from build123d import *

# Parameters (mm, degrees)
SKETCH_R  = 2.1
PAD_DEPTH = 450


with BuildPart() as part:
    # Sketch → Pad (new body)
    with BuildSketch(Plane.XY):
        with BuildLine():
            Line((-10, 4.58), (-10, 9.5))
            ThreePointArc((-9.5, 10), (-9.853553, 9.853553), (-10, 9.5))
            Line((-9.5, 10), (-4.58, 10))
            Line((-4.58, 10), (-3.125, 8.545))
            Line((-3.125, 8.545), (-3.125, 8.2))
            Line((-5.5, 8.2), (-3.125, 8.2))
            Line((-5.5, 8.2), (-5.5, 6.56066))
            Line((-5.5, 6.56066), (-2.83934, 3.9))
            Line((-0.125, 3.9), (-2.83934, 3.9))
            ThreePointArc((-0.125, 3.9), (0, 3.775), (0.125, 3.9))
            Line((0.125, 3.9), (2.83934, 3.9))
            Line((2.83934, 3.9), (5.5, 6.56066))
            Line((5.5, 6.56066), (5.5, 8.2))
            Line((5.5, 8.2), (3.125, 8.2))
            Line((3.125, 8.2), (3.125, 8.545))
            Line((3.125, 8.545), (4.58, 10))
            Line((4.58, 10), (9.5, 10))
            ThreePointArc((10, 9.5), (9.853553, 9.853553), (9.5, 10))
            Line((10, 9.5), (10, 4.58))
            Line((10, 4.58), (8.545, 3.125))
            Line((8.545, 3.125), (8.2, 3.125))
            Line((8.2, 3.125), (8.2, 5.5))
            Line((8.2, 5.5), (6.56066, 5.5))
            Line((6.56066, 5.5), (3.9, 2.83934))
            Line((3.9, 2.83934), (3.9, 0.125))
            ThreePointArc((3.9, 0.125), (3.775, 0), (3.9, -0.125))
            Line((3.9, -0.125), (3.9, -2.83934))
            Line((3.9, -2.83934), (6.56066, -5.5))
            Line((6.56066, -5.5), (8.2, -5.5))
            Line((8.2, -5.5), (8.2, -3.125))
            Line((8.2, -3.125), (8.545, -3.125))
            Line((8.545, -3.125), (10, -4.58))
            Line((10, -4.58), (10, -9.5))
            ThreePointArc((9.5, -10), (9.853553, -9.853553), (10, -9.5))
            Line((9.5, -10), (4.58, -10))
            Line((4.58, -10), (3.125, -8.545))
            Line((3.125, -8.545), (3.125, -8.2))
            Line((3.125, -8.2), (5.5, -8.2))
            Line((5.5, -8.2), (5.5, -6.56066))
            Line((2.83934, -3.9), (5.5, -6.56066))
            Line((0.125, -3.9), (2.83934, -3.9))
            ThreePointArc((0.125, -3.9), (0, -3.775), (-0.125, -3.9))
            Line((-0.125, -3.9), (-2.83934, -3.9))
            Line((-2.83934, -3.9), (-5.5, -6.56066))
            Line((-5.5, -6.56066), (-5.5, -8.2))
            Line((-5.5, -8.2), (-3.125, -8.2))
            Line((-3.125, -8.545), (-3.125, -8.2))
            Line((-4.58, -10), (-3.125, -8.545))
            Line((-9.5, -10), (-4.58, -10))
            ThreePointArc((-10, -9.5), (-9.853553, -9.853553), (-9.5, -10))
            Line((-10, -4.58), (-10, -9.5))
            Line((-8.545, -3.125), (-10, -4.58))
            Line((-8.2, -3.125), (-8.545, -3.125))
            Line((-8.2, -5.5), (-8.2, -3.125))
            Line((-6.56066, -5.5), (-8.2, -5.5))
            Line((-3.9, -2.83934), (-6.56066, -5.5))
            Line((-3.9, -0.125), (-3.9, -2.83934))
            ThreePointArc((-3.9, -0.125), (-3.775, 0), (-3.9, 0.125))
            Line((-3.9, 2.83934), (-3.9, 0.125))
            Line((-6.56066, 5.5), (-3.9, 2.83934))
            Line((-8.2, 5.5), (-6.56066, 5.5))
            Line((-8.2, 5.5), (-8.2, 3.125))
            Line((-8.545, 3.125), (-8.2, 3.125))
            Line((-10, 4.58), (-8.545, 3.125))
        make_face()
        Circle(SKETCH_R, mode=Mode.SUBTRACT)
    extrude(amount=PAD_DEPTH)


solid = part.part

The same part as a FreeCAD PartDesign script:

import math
import FreeCAD as App
import Part
import Sketcher

V = App.Vector

doc = App.newDocument("Part")
params = doc.addObject("Spreadsheet::Sheet", "Params")
for row, (alias, value) in enumerate([
    ("sketch1_diameter", "4.2 mm"),
    ("sketch1_radius", "0.500001 mm"),
    ("sketch1_width", "4.92 mm"),
    ("pad1_length", "450 mm"),
], start=1):
    params.set(f"A{row}", alias)
    params.set(f"B{row}", "=" + value)
    params.setAlias(f"B{row}", alias)

body = doc.addObject("PartDesign::Body", "Body")

# Sketch on XY plane
sketch1 = doc.addObject("Sketcher::SketchObject", "Sketch")
body.addObject(sketch1)
sketch1.AttachmentSupport = (doc.XY_Plane, [""])
sketch1.MapMode = "FlatFace"
sketch1.addGeometry(Part.LineSegment(V(-10, 9.5, 0), V(-10, 4.58, 0)), False)
sketch1.addGeometry(Part.LineSegment(V(-10, 4.58, 0), V(-8.54, 3.12, 0)), False)
sketch1.addGeometry(Part.LineSegment(V(-8.54, 3.12, 0), V(-8.2, 3.12, 0)), False)
sketch1.addGeometry(Part.LineSegment(V(-8.2, 3.12, 0), V(-8.2, 5.5, 0)), False)
sketch1.addGeometry(Part.LineSegment(V(-8.2, 5.5, 0), V(-6.56, 5.5, 0)), False)
sketch1.addGeometry(Part.LineSegment(V(-6.56, 5.5, 0), V(-3.9, 2.84, 0)), False)
sketch1.addGeometry(Part.LineSegment(V(-3.9, 2.84, 0), V(-3.9, 0.12, 0)), False)
sketch1.addGeometry(Part.ArcOfCircle(Part.Circle(V(-3.9, 0, 0), V(0, 0, 1), 0.12), math.radians(-90), math.radians(90)), False)
sketch1.addGeometry(Part.LineSegment(V(-3.9, -0.12, 0), V(-3.9, -2.84, 0)), False)
sketch1.addGeometry(Part.LineSegment(V(-3.9, -2.84, 0), V(-6.56, -5.5, 0)), False)
sketch1.addGeometry(Part.LineSegment(V(-6.56, -5.5, 0), V(-8.2, -5.5, 0)), False)
sketch1.addGeometry(Part.LineSegment(V(-8.2, -5.5, 0), V(-8.2, -3.12, 0)), False)
sketch1.addGeometry(Part.LineSegment(V(-8.2, -3.12, 0), V(-8.54, -3.12, 0)), False)
sketch1.addGeometry(Part.LineSegment(V(-8.54, -3.12, 0), V(-10, -4.58, 0)), False)
sketch1.addGeometry(Part.LineSegment(V(-10, -4.58, 0), V(-10, -9.5, 0)), False)
sketch1.addGeometry(Part.ArcOfCircle(Part.Circle(V(-9.5, -9.5, 0), V(0, 0, 1), 0.5), math.radians(-180), math.radians(-90)), False)
sketch1.addGeometry(Part.LineSegment(V(-9.5, -10, 0), V(-4.58, -10, 0)), False)
sketch1.addGeometry(Part.LineSegment(V(-4.58, -10, 0), V(-3.12, -8.54, 0)), False)
sketch1.addGeometry(Part.LineSegment(V(-3.12, -8.54, 0), V(-3.12, -8.2, 0)), False)
sketch1.addGeometry(Part.LineSegment(V(-3.12, -8.2, 0), V(-5.5, -8.2, 0)), False)
sketch1.addGeometry(Part.LineSegment(V(-5.5, -8.2, 0), V(-5.5, -6.56, 0)), False)
sketch1.addGeometry(Part.LineSegment(V(-5.5, -6.56, 0), V(-2.84, -3.9, 0)), False)
sketch1.addGeometry(Part.LineSegment(V(-2.84, -3.9, 0), V(-0.12, -3.9, 0)), False)
sketch1.addGeometry(Part.ArcOfCircle(Part.Circle(V(0, -3.9, 0), V(0, 0, 1), 0.12), math.radians(0), math.radians(180)), False)
sketch1.addGeometry(Part.LineSegment(V(0.12, -3.9, 0), V(2.84, -3.9, 0)), False)
sketch1.addGeometry(Part.LineSegment(V(2.84, -3.9, 0), V(5.5, -6.56, 0)), False)
sketch1.addGeometry(Part.LineSegment(V(5.5, -6.56, 0), V(5.5, -8.2, 0)), False)
sketch1.addGeometry(Part.LineSegment(V(5.5, -8.2, 0), V(3.12, -8.2, 0)), False)
sketch1.addGeometry(Part.LineSegment(V(3.12, -8.2, 0), V(3.12, -8.54, 0)), False)
sketch1.addGeometry(Part.LineSegment(V(3.12, -8.54, 0), V(4.58, -10, 0)), False)
sketch1.addGeometry(Part.LineSegment(V(4.58, -10, 0), V(9.5, -10, 0)), False)
sketch1.addGeometry(Part.ArcOfCircle(Part.Circle(V(9.5, -9.5, 0), V(0, 0, 1), 0.5), math.radians(-90), math.radians(0)), False)
sketch1.addGeometry(Part.LineSegment(V(10, -9.5, 0), V(10, -4.58, 0)), False)
sketch1.addGeometry(Part.LineSegment(V(10, -4.58, 0), V(8.54, -3.12, 0)), False)
sketch1.addGeometry(Part.LineSegment(V(8.54, -3.12, 0), V(8.2, -3.12, 0)), False)
sketch1.addGeometry(Part.LineSegment(V(8.2, -3.12, 0), V(8.2, -5.5, 0)), False)
sketch1.addGeometry(Part.LineSegment(V(8.2, -5.5, 0), V(6.56, -5.5, 0)), False)
sketch1.addGeometry(Part.LineSegment(V(6.56, -5.5, 0), V(3.9, -2.84, 0)), False)
sketch1.addGeometry(Part.LineSegment(V(3.9, -2.84, 0), V(3.9, -0.12, 0)), False)
sketch1.addGeometry(Part.ArcOfCircle(Part.Circle(V(3.9, 0, 0), V(0, 0, 1), 0.12), math.radians(90), math.radians(270)), False)
sketch1.addGeometry(Part.LineSegment(V(3.9, 0.12, 0), V(3.9, 2.84, 0)), False)
sketch1.addGeometry(Part.LineSegment(V(3.9, 2.84, 0), V(6.56, 5.5, 0)), False)
sketch1.addGeometry(Part.LineSegment(V(6.56, 5.5, 0), V(8.2, 5.5, 0)), False)
sketch1.addGeometry(Part.LineSegment(V(8.2, 5.5, 0), V(8.2, 3.12, 0)), False)
sketch1.addGeometry(Part.LineSegment(V(8.2, 3.12, 0), V(8.54, 3.12, 0)), False)
sketch1.addGeometry(Part.LineSegment(V(8.54, 3.12, 0), V(10, 4.58, 0)), False)
sketch1.addGeometry(Part.LineSegment(V(10, 4.58, 0), V(10, 9.5, 0)), False)
sketch1.addGeometry(Part.ArcOfCircle(Part.Circle(V(9.5, 9.5, 0), V(0, 0, 1), 0.5), math.radians(0), math.radians(90)), False)
sketch1.addGeometry(Part.LineSegment(V(9.5, 10, 0), V(4.58, 10, 0)), False)
sketch1.addGeometry(Part.LineSegment(V(4.58, 10, 0), V(3.12, 8.54, 0)), False)
sketch1.addGeometry(Part.LineSegment(V(3.12, 8.54, 0), V(3.12, 8.2, 0)), False)
sketch1.addGeometry(Part.LineSegment(V(3.12, 8.2, 0), V(5.5, 8.2, 0)), False)
sketch1.addGeometry(Part.LineSegment(V(5.5, 8.2, 0), V(5.5, 6.56, 0)), False)
sketch1.addGeometry(Part.LineSegment(V(5.5, 6.56, 0), V(2.84, 3.9, 0)), False)
sketch1.addGeometry(Part.LineSegment(V(2.84, 3.9, 0), V(0.12, 3.9, 0)), False)
sketch1.addGeometry(Part.ArcOfCircle(Part.Circle(V(0, 3.9, 0), V(0, 0, 1), 0.12), math.radians(180), math.radians(360)), False)
sketch1.addGeometry(Part.LineSegment(V(-0.12, 3.9, 0), V(-2.84, 3.9, 0)), False)
sketch1.addGeometry(Part.LineSegment(V(-2.84, 3.9, 0), V(-5.5, 6.56, 0)), False)
sketch1.addGeometry(Part.LineSegment(V(-5.5, 6.56, 0), V(-5.5, 8.2, 0)), False)
sketch1.addGeometry(Part.LineSegment(V(-5.5, 8.2, 0), V(-3.12, 8.2, 0)), False)
sketch1.addGeometry(Part.LineSegment(V(-3.12, 8.2, 0), V(-3.12, 8.54, 0)), False)
sketch1.addGeometry(Part.LineSegment(V(-3.12, 8.54, 0), V(-4.58, 10, 0)), False)
sketch1.addGeometry(Part.LineSegment(V(-4.58, 10, 0), V(-9.5, 10, 0)), False)
sketch1.addGeometry(Part.ArcOfCircle(Part.Circle(V(-9.5, 9.5, 0), V(0, 0, 1), 0.5), math.radians(90), math.radians(180)), False)
sketch1.addGeometry(Part.Circle(V(0, 0, 0), V(0, 0, 1), 2.1), False)
sketch1.addConstraint(Sketcher.Constraint("Coincident", 0, 2, 1, 1))
sketch1.addConstraint(Sketcher.Constraint("Coincident", 1, 2, 2, 1))
sketch1.addConstraint(Sketcher.Constraint("Coincident", 2, 2, 3, 1))
sketch1.addConstraint(Sketcher.Constraint("Coincident", 3, 2, 4, 1))
sketch1.addConstraint(Sketcher.Constraint("Coincident", 4, 2, 5, 1))
sketch1.addConstraint(Sketcher.Constraint("Coincident", 5, 2, 6, 1))
sketch1.addConstraint(Sketcher.Constraint("Coincident", 6, 2, 7, 2))
sketch1.addConstraint(Sketcher.Constraint("Coincident", 7, 1, 8, 1))
sketch1.addConstraint(Sketcher.Constraint("Coincident", 8, 2, 9, 1))
sketch1.addConstraint(Sketcher.Constraint("Coincident", 9, 2, 10, 1))
sketch1.addConstraint(Sketcher.Constraint("Coincident", 10, 2, 11, 1))
sketch1.addConstraint(Sketcher.Constraint("Coincident", 11, 2, 12, 1))
sketch1.addConstraint(Sketcher.Constraint("Coincident", 12, 2, 13, 1))
sketch1.addConstraint(Sketcher.Constraint("Coincident", 13, 2, 14, 1))
sketch1.addConstraint(Sketcher.Constraint("Coincident", 14, 2, 15, 1))
sketch1.addConstraint(Sketcher.Constraint("Coincident", 15, 2, 16, 1))
sketch1.addConstraint(Sketcher.Constraint("Coincident", 16, 2, 17, 1))
sketch1.addConstraint(Sketcher.Constraint("Coincident", 17, 2, 18, 1))
sketch1.addConstraint(Sketcher.Constraint("Coincident", 18, 2, 19, 1))
sketch1.addConstraint(Sketcher.Constraint("Coincident", 19, 2, 20, 1))
sketch1.addConstraint(Sketcher.Constraint("Coincident", 20, 2, 21, 1))
sketch1.addConstraint(Sketcher.Constraint("Coincident", 21, 2, 22, 1))
sketch1.addConstraint(Sketcher.Constraint("Coincident", 22, 2, 23, 2))
sketch1.addConstraint(Sketcher.Constraint("Coincident", 23, 1, 24, 1))
sketch1.addConstraint(Sketcher.Constraint("Coincident", 24, 2, 25, 1))
sketch1.addConstraint(Sketcher.Constraint("Coincident", 25, 2, 26, 1))
sketch1.addConstraint(Sketcher.Constraint("Coincident", 26, 2, 27, 1))
sketch1.addConstraint(Sketcher.Constraint("Coincident", 27, 2, 28, 1))
sketch1.addConstraint(Sketcher.Constraint("Coincident", 28, 2, 29, 1))
sketch1.addConstraint(Sketcher.Constraint("Coincident", 29, 2, 30, 1))
sketch1.addConstraint(Sketcher.Constraint("Coincident", 30, 2, 31, 1))
sketch1.addConstraint(Sketcher.Constraint("Coincident", 31, 2, 32, 1))
sketch1.addConstraint(Sketcher.Constraint("Coincident", 32, 2, 33, 1))
sketch1.addConstraint(Sketcher.Constraint("Coincident", 33, 2, 34, 1))
sketch1.addConstraint(Sketcher.Constraint("Coincident", 34, 2, 35, 1))
sketch1.addConstraint(Sketcher.Constraint("Coincident", 35, 2, 36, 1))
sketch1.addConstraint(Sketcher.Constraint("Coincident", 36, 2, 37, 1))
sketch1.addConstraint(Sketcher.Constraint("Coincident", 37, 2, 38, 1))
sketch1.addConstraint(Sketcher.Constraint("Coincident", 38, 2, 39, 2))
sketch1.addConstraint(Sketcher.Constraint("Coincident", 39, 1, 40, 1))
sketch1.addConstraint(Sketcher.Constraint("Coincident", 40, 2, 41, 1))
sketch1.addConstraint(Sketcher.Constraint("Coincident", 41, 2, 42, 1))
sketch1.addConstraint(Sketcher.Constraint("Coincident", 42, 2, 43, 1))
sketch1.addConstraint(Sketcher.Constraint("Coincident", 43, 2, 44, 1))
sketch1.addConstraint(Sketcher.Constraint("Coincident", 44, 2, 45, 1))
sketch1.addConstraint(Sketcher.Constraint("Coincident", 45, 2, 46, 1))
sketch1.addConstraint(Sketcher.Constraint("Coincident", 46, 2, 47, 1))
sketch1.addConstraint(Sketcher.Constraint("Coincident", 47, 2, 48, 1))
sketch1.addConstraint(Sketcher.Constraint("Coincident", 48, 2, 49, 1))
sketch1.addConstraint(Sketcher.Constraint("Coincident", 49, 2, 50, 1))
sketch1.addConstraint(Sketcher.Constraint("Coincident", 50, 2, 51, 1))
sketch1.addConstraint(Sketcher.Constraint("Coincident", 51, 2, 52, 1))
sketch1.addConstraint(Sketcher.Constraint("Coincident", 52, 2, 53, 1))
sketch1.addConstraint(Sketcher.Constraint("Coincident", 53, 2, 54, 1))
sketch1.addConstraint(Sketcher.Constraint("Coincident", 54, 2, 55, 2))
sketch1.addConstraint(Sketcher.Constraint("Coincident", 55, 1, 56, 1))
sketch1.addConstraint(Sketcher.Constraint("Coincident", 56, 2, 57, 1))
sketch1.addConstraint(Sketcher.Constraint("Coincident", 57, 2, 58, 1))
sketch1.addConstraint(Sketcher.Constraint("Coincident", 58, 2, 59, 1))
sketch1.addConstraint(Sketcher.Constraint("Coincident", 59, 2, 60, 1))
sketch1.addConstraint(Sketcher.Constraint("Coincident", 60, 2, 61, 1))
sketch1.addConstraint(Sketcher.Constraint("Coincident", 61, 2, 62, 1))
sketch1.addConstraint(Sketcher.Constraint("Coincident", 62, 2, 63, 1))
sketch1.addConstraint(Sketcher.Constraint("Coincident", 63, 2, 0, 1))
sketch1.addConstraint(Sketcher.Constraint("Vertical", 0))
sketch1.addConstraint(Sketcher.Constraint("Horizontal", 2))
sketch1.addConstraint(Sketcher.Constraint("Vertical", 3))
sketch1.addConstraint(Sketcher.Constraint("Horizontal", 4))
sketch1.addConstraint(Sketcher.Constraint("Vertical", 6))
sketch1.addConstraint(Sketcher.Constraint("Vertical", 8))
sketch1.addConstraint(Sketcher.Constraint("Horizontal", 10))
sketch1.addConstraint(Sketcher.Constraint("Vertical", 11))
sketch1.addConstraint(Sketcher.Constraint("Horizontal", 12))
sketch1.addConstraint(Sketcher.Constraint("Vertical", 14))
sketch1.addConstraint(Sketcher.Constraint("Horizontal", 16))
sketch1.addConstraint(Sketcher.Constraint("Vertical", 18))
sketch1.addConstraint(Sketcher.Constraint("Horizontal", 19))
sketch1.addConstraint(Sketcher.Constraint("Vertical", 20))
sketch1.addConstraint(Sketcher.Constraint("Horizontal", 22))
sketch1.addConstraint(Sketcher.Constraint("Horizontal", 24))
sketch1.addConstraint(Sketcher.Constraint("Vertical", 26))
sketch1.addConstraint(Sketcher.Constraint("Horizontal", 27))
sketch1.addConstraint(Sketcher.Constraint("Vertical", 28))
sketch1.addConstraint(Sketcher.Constraint("Horizontal", 30))
sketch1.addConstraint(Sketcher.Constraint("Vertical", 32))
sketch1.addConstraint(Sketcher.Constraint("Horizontal", 34))
sketch1.addConstraint(Sketcher.Constraint("Vertical", 35))
sketch1.addConstraint(Sketcher.Constraint("Horizontal", 36))
sketch1.addConstraint(Sketcher.Constraint("Vertical", 38))
sketch1.addConstraint(Sketcher.Constraint("Vertical", 40))
sketch1.addConstraint(Sketcher.Constraint("Horizontal", 42))
sketch1.addConstraint(Sketcher.Constraint("Vertical", 43))
sketch1.addConstraint(Sketcher.Constraint("Horizontal", 44))
sketch1.addConstraint(Sketcher.Constraint("Vertical", 46))
sketch1.addConstraint(Sketcher.Constraint("Horizontal", 48))
sketch1.addConstraint(Sketcher.Constraint("Vertical", 50))
sketch1.addConstraint(Sketcher.Constraint("Horizontal", 51))
sketch1.addConstraint(Sketcher.Constraint("Vertical", 52))
sketch1.addConstraint(Sketcher.Constraint("Horizontal", 54))
sketch1.addConstraint(Sketcher.Constraint("Horizontal", 56))
sketch1.addConstraint(Sketcher.Constraint("Vertical", 58))
sketch1.addConstraint(Sketcher.Constraint("Horizontal", 59))
sketch1.addConstraint(Sketcher.Constraint("Vertical", 60))
sketch1.addConstraint(Sketcher.Constraint("Horizontal", 62))
sketch1.addConstraint(Sketcher.Constraint("Coincident", 64, 3, -1, 1))
sketch1.addConstraint(Sketcher.Constraint("Equal", 7, 23))
sketch1.addConstraint(Sketcher.Constraint("Equal", 15, 31))
sketch1.addConstraint(Sketcher.Constraint("Equal", 23, 39))
sketch1.addConstraint(Sketcher.Constraint("Equal", 31, 47))
sketch1.addConstraint(Sketcher.Constraint("Equal", 39, 55))
sketch1.addConstraint(Sketcher.Constraint("Equal", 47, 63))
sketch1.addConstraint(Sketcher.Constraint("Symmetric", 7, 3, 39, 3, -1, 1))
sketch1.addConstraint(Sketcher.Constraint("Symmetric", 15, 3, 47, 3, -1, 1))
sketch1.addConstraint(Sketcher.Constraint("Symmetric", 23, 3, 55, 3, -1, 1))
sketch1.addConstraint(Sketcher.Constraint("Symmetric", 31, 3, 63, 3, -1, 1))
sketch1.addConstraint(Sketcher.Constraint("Symmetric", 1, 2, 33, 2, -1, 1))
sketch1.addConstraint(Sketcher.Constraint("Symmetric", 3, 2, 35, 2, -1, 1))
sketch1.addConstraint(Sketcher.Constraint("Symmetric", 5, 2, 37, 2, -1, 1))
sketch1.addConstraint(Sketcher.Constraint("Symmetric", 8, 2, 40, 2, -1, 1))
sketch1.addConstraint(Sketcher.Constraint("Symmetric", 9, 2, 41, 2, -1, 1))
sketch1.addConstraint(Sketcher.Constraint("Symmetric", 11, 2, 43, 2, -1, 1))
sketch1.addConstraint(Sketcher.Constraint("Symmetric", 17, 2, 49, 2, -1, 1))
sketch1.addConstraint(Sketcher.Constraint("Symmetric", 19, 2, 51, 2, -1, 1))
sketch1.addConstraint(Sketcher.Constraint("Symmetric", 21, 2, 53, 2, -1, 1))
sketch1.addConstraint(Sketcher.Constraint("Symmetric", 24, 2, 56, 2, -1, 1))
sketch1.addConstraint(Sketcher.Constraint("Symmetric", 25, 2, 57, 2, -1, 1))
sketch1.addConstraint(Sketcher.Constraint("Symmetric", 27, 2, 59, 2, -1, 1))
sketch1.addConstraint(Sketcher.Constraint("Symmetric", 15, 3, 31, 3, -2))
sketch1.addConstraint(Sketcher.Constraint("Symmetric", 22, 2, 23, 1, -2))
sketch1.addConstraint(Sketcher.Constraint("Symmetric", 20, 2, 25, 2, -2))
sketch1.addConstraint(Sketcher.Constraint("Symmetric", 18, 2, 27, 2, -2))
sketch1.addConstraint(Sketcher.Constraint("Symmetric", 12, 2, 33, 2, -2))
sketch1.addConstraint(Sketcher.Constraint("Symmetric", 10, 2, 35, 2, -2))
sketch1.addConstraint(Sketcher.Constraint("Symmetric", 8, 2, 37, 2, -2))
sketch1.addConstraint(Sketcher.Constraint("PointOnObject", 7, 3, -1))
sketch1.addConstraint(Sketcher.Constraint("Parallel", 1, 5))
sketch1.addConstraint(Sketcher.Constraint("Perpendicular", 5, 9))
sketch1.addConstraint(Sketcher.Constraint("Parallel", 9, 13))
sketch1.addConstraint(Sketcher.Constraint("Parallel", 13, 17))
sketch1.addConstraint(Sketcher.Constraint("Parallel", 17, 21))
sketch1.addConstraint(Sketcher.Constraint("Perpendicular", 21, 25))
sketch1.addConstraint(Sketcher.Constraint("Parallel", 25, 29))
sketch1.addConstraint(Sketcher.Constraint("Parallel", 29, 33))
sketch1.addConstraint(Sketcher.Constraint("Parallel", 33, 37))
sketch1.addConstraint(Sketcher.Constraint("Parallel", 41, 45))
sketch1.addConstraint(Sketcher.Constraint("Parallel", 45, 49))
sketch1.addConstraint(Sketcher.Constraint("Parallel", 49, 53))
sketch1.addConstraint(Sketcher.Constraint("Parallel", 57, 61))
sketch1.addConstraint(Sketcher.Constraint("Horizontal", 31, 3, 14, 2))
sketch1.addConstraint(Sketcher.Constraint("Horizontal", 23, 3, 21, 2))
sketch1.addConstraint(Sketcher.Constraint("Horizontal", 17, 2, 28, 2))
sketch1.addConstraint(Sketcher.Constraint("Horizontal", 14, 2, 31, 2))
sketch1.addConstraint(Sketcher.Constraint("Horizontal", 13, 2, 32, 2))
sketch1.addConstraint(Sketcher.Constraint("Horizontal", 0, 2, 45, 2))
sketch1.addConstraint(Sketcher.Constraint("Horizontal", 63, 3, 46, 2))
sketch1.addConstraint(Sketcher.Constraint("Horizontal", 49, 2, 60, 2))
sketch1.addConstraint(Sketcher.Constraint("Horizontal", 46, 2, 63, 2))
sketch1.addConstraint(Sketcher.Constraint("Vertical", 7, 3, 5, 2))
sketch1.addConstraint(Sketcher.Constraint("Vertical", 63, 3, 15, 2))
sketch1.addConstraint(Sketcher.Constraint("Vertical", 47, 3, 30, 2))
sketch1.addConstraint(Sketcher.Constraint("Vertical", 30, 2, 47, 2))
sketch1.addConstraint(Sketcher.Constraint("Vertical", 15, 2, 62, 2))
sketch1.addConstraint(Sketcher.Constraint("Equal", 62, 0))
sketch1.addConstraint(Sketcher.Constraint("Equal", 59, 3))
sketch1.addConstraint(Sketcher.Constraint("Equal", 56, 6))
sketch1.addConstraint(Sketcher.Constraint("Equal", 44, 18))
sketch1.addConstraint(Sketcher.Constraint("Equal", 42, 20))
sketch1.addConstraint(Sketcher.Constraint("Equal", 13, 17))
sketch1.addConstraint(Sketcher.Constraint("Equal", 9, 21))
sketch1.addConstraint(Sketcher.Constraint("Diameter", 64, 4.2))
sketch1.addConstraint(Sketcher.Constraint("Radius", 15, 0.500001))
sketch1.addConstraint(Sketcher.Constraint("DistanceX", 0, 2, -1, 1, 10.0))
sketch1.addConstraint(Sketcher.Constraint("Radius", 7, 0.125))
sketch1.addConstraint(Sketcher.Constraint("DistanceX", 16, 1, 16, 2, 4.92))
sketch1.addConstraint(Sketcher.Constraint("DistanceX", 7, 3, -1, 1, 3.9))
sketch1.addConstraint(Sketcher.Constraint("DistanceX", 2, 2, -1, 1, 8.2))
sketch1.addConstraint(Sketcher.Constraint("DistanceY", -1, 1, 3, 2, 5.5))
sketch1.addConstraint(Sketcher.Constraint("DistanceX", 2, 1, 2, 2, 0.345))
sketch1.addConstraint(Sketcher.Constraint("DistanceX", 4, 1, 4, 2, 1.63934))
sketch1.setExpression("Constraints[169]", "Params.sketch1_diameter")
sketch1.setExpression("Constraints[170]", "Params.sketch1_radius")
sketch1.setExpression("Constraints[173]", "Params.sketch1_width")
pad1 = doc.addObject("PartDesign::Pad", "Pad")
body.addObject(pad1)
pad1.Profile = sketch1
pad1.setExpression("Length", "Params.pad1_length")

doc.recompute()
